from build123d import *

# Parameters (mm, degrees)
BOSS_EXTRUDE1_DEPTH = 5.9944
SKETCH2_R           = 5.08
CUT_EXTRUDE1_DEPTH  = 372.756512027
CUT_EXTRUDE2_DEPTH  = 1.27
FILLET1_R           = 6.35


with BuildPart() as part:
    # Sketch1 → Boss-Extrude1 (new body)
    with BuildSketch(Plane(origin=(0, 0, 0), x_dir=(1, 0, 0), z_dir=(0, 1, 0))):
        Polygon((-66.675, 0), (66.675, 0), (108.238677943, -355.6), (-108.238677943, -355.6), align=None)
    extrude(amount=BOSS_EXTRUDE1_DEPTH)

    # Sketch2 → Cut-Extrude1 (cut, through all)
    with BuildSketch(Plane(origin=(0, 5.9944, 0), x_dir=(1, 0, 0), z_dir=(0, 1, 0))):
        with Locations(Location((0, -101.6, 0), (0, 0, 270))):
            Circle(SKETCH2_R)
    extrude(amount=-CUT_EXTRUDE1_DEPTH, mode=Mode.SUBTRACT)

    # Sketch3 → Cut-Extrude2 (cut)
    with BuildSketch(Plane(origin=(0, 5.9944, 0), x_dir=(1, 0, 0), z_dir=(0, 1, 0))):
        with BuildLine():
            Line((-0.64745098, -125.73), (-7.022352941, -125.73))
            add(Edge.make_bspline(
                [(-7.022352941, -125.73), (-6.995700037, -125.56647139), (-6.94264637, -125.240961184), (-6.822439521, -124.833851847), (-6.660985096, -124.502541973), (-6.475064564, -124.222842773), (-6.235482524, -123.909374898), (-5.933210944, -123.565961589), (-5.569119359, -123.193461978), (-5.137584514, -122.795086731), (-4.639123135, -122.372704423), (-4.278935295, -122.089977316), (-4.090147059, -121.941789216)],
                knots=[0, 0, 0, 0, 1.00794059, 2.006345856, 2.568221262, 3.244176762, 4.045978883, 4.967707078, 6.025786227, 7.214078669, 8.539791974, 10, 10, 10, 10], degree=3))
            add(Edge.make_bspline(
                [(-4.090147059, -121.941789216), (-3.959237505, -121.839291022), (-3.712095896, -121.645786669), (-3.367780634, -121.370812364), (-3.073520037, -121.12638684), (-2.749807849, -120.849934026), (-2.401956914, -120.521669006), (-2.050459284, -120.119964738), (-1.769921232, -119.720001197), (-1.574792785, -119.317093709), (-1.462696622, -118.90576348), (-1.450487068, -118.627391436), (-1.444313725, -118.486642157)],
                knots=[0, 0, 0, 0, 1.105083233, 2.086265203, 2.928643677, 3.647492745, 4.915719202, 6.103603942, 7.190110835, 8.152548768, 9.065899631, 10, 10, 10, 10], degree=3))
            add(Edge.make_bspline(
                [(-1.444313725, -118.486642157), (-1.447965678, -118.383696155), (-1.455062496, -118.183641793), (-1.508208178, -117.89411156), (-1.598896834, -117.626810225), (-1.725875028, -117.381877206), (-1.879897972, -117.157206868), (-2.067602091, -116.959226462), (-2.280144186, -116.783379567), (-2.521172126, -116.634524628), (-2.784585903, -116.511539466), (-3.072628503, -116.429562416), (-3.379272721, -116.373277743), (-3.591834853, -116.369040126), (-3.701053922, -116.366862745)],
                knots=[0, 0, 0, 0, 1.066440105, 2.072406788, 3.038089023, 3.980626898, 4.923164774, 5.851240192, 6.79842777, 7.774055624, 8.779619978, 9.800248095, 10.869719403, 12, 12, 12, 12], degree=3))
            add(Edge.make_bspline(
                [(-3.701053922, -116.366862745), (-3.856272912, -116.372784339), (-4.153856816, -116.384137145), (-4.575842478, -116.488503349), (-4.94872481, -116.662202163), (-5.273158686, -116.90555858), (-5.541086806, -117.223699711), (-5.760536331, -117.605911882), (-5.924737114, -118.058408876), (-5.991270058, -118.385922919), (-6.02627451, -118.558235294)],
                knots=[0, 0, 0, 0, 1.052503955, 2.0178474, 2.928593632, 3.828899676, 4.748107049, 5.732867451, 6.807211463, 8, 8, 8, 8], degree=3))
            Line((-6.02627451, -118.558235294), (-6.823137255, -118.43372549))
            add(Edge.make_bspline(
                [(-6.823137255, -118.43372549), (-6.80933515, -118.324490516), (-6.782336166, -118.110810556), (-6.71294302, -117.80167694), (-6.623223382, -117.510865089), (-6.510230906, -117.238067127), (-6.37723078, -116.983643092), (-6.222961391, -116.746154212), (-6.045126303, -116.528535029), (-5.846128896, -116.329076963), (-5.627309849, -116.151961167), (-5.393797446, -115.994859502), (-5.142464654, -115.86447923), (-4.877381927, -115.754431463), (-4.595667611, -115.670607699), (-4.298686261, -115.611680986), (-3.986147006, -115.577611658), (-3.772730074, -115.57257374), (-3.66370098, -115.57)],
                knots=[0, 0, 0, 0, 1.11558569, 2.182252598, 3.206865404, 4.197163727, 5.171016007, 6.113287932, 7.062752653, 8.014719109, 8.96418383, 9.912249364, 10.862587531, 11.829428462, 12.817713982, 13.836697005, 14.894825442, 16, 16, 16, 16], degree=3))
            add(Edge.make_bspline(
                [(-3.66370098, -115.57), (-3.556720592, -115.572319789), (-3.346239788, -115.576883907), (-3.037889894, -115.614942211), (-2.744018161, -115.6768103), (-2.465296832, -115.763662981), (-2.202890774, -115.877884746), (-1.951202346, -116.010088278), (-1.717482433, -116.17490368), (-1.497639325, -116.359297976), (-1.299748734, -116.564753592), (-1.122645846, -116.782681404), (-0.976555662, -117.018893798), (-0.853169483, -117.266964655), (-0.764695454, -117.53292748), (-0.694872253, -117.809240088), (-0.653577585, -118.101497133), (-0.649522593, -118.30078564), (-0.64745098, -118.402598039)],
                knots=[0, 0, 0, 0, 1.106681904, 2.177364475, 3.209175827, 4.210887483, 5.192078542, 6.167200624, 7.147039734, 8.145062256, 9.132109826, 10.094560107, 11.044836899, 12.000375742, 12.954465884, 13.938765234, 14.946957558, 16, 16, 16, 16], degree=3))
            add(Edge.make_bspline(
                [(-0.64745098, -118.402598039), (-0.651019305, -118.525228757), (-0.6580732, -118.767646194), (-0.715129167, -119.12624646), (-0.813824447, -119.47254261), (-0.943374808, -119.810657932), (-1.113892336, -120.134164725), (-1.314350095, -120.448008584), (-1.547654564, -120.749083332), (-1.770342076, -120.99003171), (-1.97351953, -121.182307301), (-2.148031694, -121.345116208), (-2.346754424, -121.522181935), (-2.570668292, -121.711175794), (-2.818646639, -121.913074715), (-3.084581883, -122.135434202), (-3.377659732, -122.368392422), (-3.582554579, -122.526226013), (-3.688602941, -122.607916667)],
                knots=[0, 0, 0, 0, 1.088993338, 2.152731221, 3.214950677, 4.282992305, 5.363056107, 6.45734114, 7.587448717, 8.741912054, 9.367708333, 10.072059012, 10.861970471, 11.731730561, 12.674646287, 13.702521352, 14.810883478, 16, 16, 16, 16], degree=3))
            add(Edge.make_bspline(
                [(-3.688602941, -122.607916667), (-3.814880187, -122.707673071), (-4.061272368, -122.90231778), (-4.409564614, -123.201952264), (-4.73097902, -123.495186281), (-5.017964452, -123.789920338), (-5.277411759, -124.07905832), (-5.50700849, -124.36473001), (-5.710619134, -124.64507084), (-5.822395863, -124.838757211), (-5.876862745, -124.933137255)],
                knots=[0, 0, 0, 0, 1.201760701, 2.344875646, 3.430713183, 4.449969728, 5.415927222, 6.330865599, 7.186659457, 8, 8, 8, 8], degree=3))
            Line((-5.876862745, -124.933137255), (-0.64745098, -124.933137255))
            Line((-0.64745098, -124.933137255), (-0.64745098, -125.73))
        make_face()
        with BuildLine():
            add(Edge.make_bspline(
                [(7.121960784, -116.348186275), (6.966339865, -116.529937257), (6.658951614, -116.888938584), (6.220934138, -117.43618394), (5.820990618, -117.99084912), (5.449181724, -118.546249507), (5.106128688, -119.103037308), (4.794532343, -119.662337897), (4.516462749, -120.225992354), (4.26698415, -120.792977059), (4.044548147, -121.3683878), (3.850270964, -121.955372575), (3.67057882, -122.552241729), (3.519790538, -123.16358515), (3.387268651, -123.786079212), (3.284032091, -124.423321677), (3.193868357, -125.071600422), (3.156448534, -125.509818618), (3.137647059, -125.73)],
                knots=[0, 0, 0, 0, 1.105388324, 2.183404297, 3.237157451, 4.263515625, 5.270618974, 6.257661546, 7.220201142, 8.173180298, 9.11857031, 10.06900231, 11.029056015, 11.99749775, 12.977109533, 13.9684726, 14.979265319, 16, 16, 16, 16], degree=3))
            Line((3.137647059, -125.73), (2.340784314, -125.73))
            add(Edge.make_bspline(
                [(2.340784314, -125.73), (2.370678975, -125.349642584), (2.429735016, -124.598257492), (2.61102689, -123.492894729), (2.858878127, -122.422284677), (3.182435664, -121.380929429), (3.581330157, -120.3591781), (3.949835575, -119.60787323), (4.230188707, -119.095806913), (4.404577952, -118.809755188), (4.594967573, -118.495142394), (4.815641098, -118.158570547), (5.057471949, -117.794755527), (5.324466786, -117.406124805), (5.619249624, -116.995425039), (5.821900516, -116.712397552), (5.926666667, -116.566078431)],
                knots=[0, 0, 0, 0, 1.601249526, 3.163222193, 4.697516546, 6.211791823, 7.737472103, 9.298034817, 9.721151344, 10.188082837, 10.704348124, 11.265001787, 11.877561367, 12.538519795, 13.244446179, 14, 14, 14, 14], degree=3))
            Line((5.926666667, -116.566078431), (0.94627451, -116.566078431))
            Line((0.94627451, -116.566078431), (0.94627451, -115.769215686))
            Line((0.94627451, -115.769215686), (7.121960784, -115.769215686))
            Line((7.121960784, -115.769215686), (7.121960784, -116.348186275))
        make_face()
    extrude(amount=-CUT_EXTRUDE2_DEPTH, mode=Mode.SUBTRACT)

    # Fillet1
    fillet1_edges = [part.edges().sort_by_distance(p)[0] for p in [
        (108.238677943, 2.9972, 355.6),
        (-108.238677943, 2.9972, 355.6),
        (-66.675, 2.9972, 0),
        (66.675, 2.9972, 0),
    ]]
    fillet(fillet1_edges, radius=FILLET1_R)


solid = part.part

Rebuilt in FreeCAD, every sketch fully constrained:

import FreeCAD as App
import Part
import Sketcher

V = App.Vector
Q = App.Units.Quantity


def edges_at(feature, points):
    """Names of the edges that pass closest to the given points."""
    edges = feature.Shape.Edges
    near = lambda p: min(range(len(edges)), key=lambda i: edges[i].distToShape(Part.Vertex(*p))[0])
    return sorted({f"Edge{near(p) + 1}" for p in points})


def add_polygon(sketch, points):
    """Adds a closed chain of lines whose ends are joined by coincident constraints."""
    first, n = sketch.GeometryCount, len(points)
    for a, b in zip(points, points[1:] + points[:1]):
        sketch.addGeometry(Part.LineSegment(App.Vector(*a, 0), App.Vector(*b, 0)), False)
    for i in range(n):
        sketch.addConstraint(Sketcher.Constraint("Coincident", first + i, 2, first + (i + 1) % n, 1))

doc = App.newDocument("Part")
body = doc.addObject("PartDesign::Body", "Body")

# Sketch on XZ plane
sketch1 = doc.addObject("Sketcher::SketchObject", "Sketch")
body.addObject(sketch1)
sketch1.AttachmentSupport = (doc.XZ_Plane, [""])
sketch1.MapMode = "FlatFace"
add_polygon(sketch1, [(67, 0), (-67, 0), (-108, 356), (108, 356)])  # lines 0-3
sketch1.addConstraint(Sketcher.Constraint("Horizontal", 0))
sketch1.addConstraint(Sketcher.Constraint("Horizontal", 2))
sketch1.addConstraint(Sketcher.Constraint("Symmetric", 0, 2, 3, 2, -1, 1))
sketch1.addConstraint(Sketcher.Constraint("Equal", 1, 3))
sketch1.addConstraint(Sketcher.Constraint("DistanceY", -1, 1, 1, 2, Q("14 in")))
sketch1.addConstraint(Sketcher.Constraint("DistanceX", 0, 2, 0, 1, Q("5.25 in")))
sketch1.addConstraint(Sketcher.Constraint("Distance", 1, 358.020809))
pad1 = doc.addObject("PartDesign::Pad", "Pad")
body.addObject(pad1)
pad1.Profile = sketch1
pad1.Length = Q("0.236 in")
pad1.Reversed = True

# Sketch on XZ plane
sketch2 = doc.addObject("Sketcher::SketchObject", "Sketch001")
body.addObject(sketch2)
sketch2.AttachmentSupport = (doc.XZ_Plane, [""])
sketch2.MapMode = "FlatFace"
sketch2.AttachmentOffset = App.Placement(V(0, 0, -0.236 * 25.4), App.Rotation())
sketch2.addGeometry(Part.Circle(V(0, 102, 0), V(0, 0, 1), 5), False)
sketch2.addConstraint(Sketcher.Constraint("PointOnObject", 0, 3, -2))
sketch2.addConstraint(Sketcher.Constraint("Diameter", 0, Q("0.4 in")))
sketch2.addConstraint(Sketcher.Constraint("DistanceY", -1, 1, 0, 3, Q("4 in")))
pocket1 = doc.addObject("PartDesign::Pocket", "Pocket")
body.addObject(pocket1)
pocket1.Profile = sketch2
pocket1.Type = "ThroughAll"
pocket1.Reversed = True

# Sketch on XZ plane
sketch3 = doc.addObject("Sketcher::SketchObject", "Sketch002")
body.addObject(sketch3)
sketch3.AttachmentSupport = (doc.XZ_Plane, [""])
sketch3.MapMode = "FlatFace"
sketch3.AttachmentOffset = App.Placement(V(0, 0, -0.236 * 25.4), App.Rotation())
sketch3.addGeometry(Part.LineSegment(V(-7.022353, 125.73, 0), V(-0.647451, 125.73, 0)), False)
sketch3.addGeometry(Part.LineSegment(V(-0.647451, 125.73, 0), V(-0.647451, 124.933137, 0)), False)
sketch3.addGeometry(Part.LineSegment(V(-0.647451, 124.933137, 0), V(-5.876863, 124.933137, 0)), False)
sketch3.addGeometry(Part.BSplineCurve([V(-3.688603, 122.607917, 0), V(-3.81488, 122.707673, 0), V(-4.061272, 122.902318, 0), V(-4.409565, 123.201952, 0), V(-4.730979, 123.495186, 0), V(-5.017964, 123.78992, 0), V(-5.277412, 124.079058, 0), V(-5.507008, 124.36473, 0), V(-5.710619, 124.645071, 0), V(-5.822396, 124.838757, 0), V(-5.876863, 124.933137, 0)], [4, 1, 1, 1, 1, 1, 1, 1, 4], [0, 1.201760701, 2.344875646, 3.430713183, 4.449969728, 5.415927222, 6.330865599, 7.186659457, 8], False, 3, [1, 1, 1, 1, 1, 1, 1, 1, 1, 1, 1], False), False)
sketch3.addGeometry(Part.BSplineCurve([V(-0.647451, 118.402598, 0), V(-0.651019, 118.525229, 0), V(-0.658073, 118.767646, 0), V(-0.715129, 119.126246, 0), V(-0.813824, 119.472543, 0), V(-0.943375, 119.810658, 0), V(-1.113892, 120.134165, 0), V(-1.31435, 120.448009, 0), V(-1.547655, 120.749083, 0), V(-1.770342, 120.990032, 0), V(-1.97352, 121.182307, 0), V(-2.148032, 121.345116, 0), V(-2.346754, 121.522182, 0), V(-2.570668, 121.711176, 0), V(-2.818647, 121.913075, 0), V(-3.084582, 122.135434, 0), V(-3.37766, 122.368392, 0), V(-3.582555, 122.526226, 0), V(-3.688603, 122.607917, 0)], [4, 1, 1, 1, 1, 1, 1, 1, 1, 1, 1, 1, 1, 1, 1, 1, 4], [0, 1.088993338, 2.152731221, 3.214950677, 4.282992305, 5.363056107, 6.45734114, 7.587448717, 8.741912054, 9.367708333, 10.072059012, 10.861970471, 11.731730561, 12.674646287, 13.702521352, 14.810883478, 16], False, 3, [1, 1, 1, 1, 1, 1, 1, 1, 1, 1, 1, 1, 1, 1, 1, 1, 1, 1, 1], False), False)
sketch3.addGeometry(Part.BSplineCurve([V(-3.663701, 115.57, 0), V(-3.556721, 115.57232, 0), V(-3.34624, 115.576884, 0), V(-3.03789, 115.614942, 0), V(-2.744018, 115.67681, 0), V(-2.465297, 115.763663, 0), V(-2.202891, 115.877885, 0), V(-1.951202, 116.010088, 0), V(-1.717482, 116.174904, 0), V(-1.497639, 116.359298, 0), V(-1.299749, 116.564754, 0), V(-1.122646, 116.782681, 0), V(-0.976556, 117.018894, 0), V(-0.853169, 117.266965, 0), V(-0.764695, 117.532927, 0), V(-0.694872, 117.80924, 0), V(-0.653578, 118.101497, 0), V(-0.649523, 118.300786, 0), V(-0.647451, 118.402598, 0)], [4, 1, 1, 1, 1, 1, 1, 1, 1, 1, 1, 1, 1, 1, 1, 1, 4], [0, 1.106681904, 2.177364475, 3.209175827, 4.210887483, 5.192078542, 6.167200624, 7.147039734, 8.145062256, 9.132109826, 10.094560107, 11.044836899, 12.000375742, 12.954465884, 13.938765234, 14.946957558, 16], False, 3, [1, 1, 1, 1, 1, 1, 1, 1, 1, 1, 1, 1, 1, 1, 1, 1, 1, 1, 1], False), False)
sketch3.addGeometry(Part.BSplineCurve([V(-6.823137, 118.433725, 0), V(-6.809335, 118.324491, 0), V(-6.782336, 118.110811, 0), V(-6.712943, 117.801677, 0), V(-6.623223, 117.510865, 0), V(-6.510231, 117.238067, 0), V(-6.377231, 116.983643, 0), V(-6.222961, 116.746154, 0), V(-6.045126, 116.528535, 0), V(-5.846129, 116.329077, 0), V(-5.62731, 116.151961, 0), V(-5.393797, 115.99486, 0), V(-5.142465, 115.864479, 0), V(-4.877382, 115.754431, 0), V(-4.595668, 115.670608, 0), V(-4.298686, 115.611681, 0), V(-3.986147, 115.577612, 0), V(-3.77273, 115.572574, 0), V(-3.663701, 115.57, 0)], [4, 1, 1, 1, 1, 1, 1, 1, 1, 1, 1, 1, 1, 1, 1, 1, 4], [0, 1.11558569, 2.182252598, 3.206865404, 4.197163727, 5.171016007, 6.113287932, 7.062752653, 8.014719109, 8.96418383, 9.912249364, 10.862587531, 11.829428462, 12.817713982, 13.836697005, 14.894825442, 16], False, 3, [1, 1, 1, 1, 1, 1, 1, 1, 1, 1, 1, 1, 1, 1, 1, 1, 1, 1, 1], False), False)
sketch3.addGeometry(Part.LineSegment(V(-6.823137, 118.433725, 0), V(-6.026275, 118.558235, 0)), False)
sketch3.addGeometry(Part.BSplineCurve([V(-3.701054, 116.366863, 0), V(-3.856273, 116.372784, 0), V(-4.153857, 116.384137, 0), V(-4.575842, 116.488503, 0), V(-4.948725, 116.662202, 0), V(-5.273159, 116.905559, 0), V(-5.541087, 117.2237, 0), V(-5.760536, 117.605912, 0), V(-5.924737, 118.058409, 0), V(-5.99127, 118.385923, 0), V(-6.026275, 118.558235, 0)], [4, 1, 1, 1, 1, 1, 1, 1, 4], [0, 1.052503955, 2.0178474, 2.928593632, 3.828899676, 4.748107049, 5.732867451, 6.807211463, 8], False, 3, [1, 1, 1, 1, 1, 1, 1, 1, 1, 1, 1], False), False)
sketch3.addGeometry(Part.BSplineCurve([V(-1.444314, 118.486642, 0), V(-1.447966, 118.383696, 0), V(-1.455062, 118.183642, 0), V(-1.508208, 117.894112, 0), V(-1.598897, 117.62681, 0), V(-1.725875, 117.381877, 0), V(-1.879898, 117.157207, 0), V(-2.067602, 116.959226, 0), V(-2.280144, 116.78338, 0), V(-2.521172, 116.634525, 0), V(-2.784586, 116.511539, 0), V(-3.072629, 116.429562, 0), V(-3.379273, 116.373278, 0), V(-3.591835, 116.36904, 0), V(-3.701054, 116.366863, 0)], [4, 1, 1, 1, 1, 1, 1, 1, 1, 1, 1, 1, 4], [0, 1.066440105, 2.072406788, 3.038089023, 3.980626898, 4.923164774, 5.851240192, 6.79842777, 7.774055624, 8.779619978, 9.800248095, 10.869719403, 12], False, 3, [1, 1, 1, 1, 1, 1, 1, 1, 1, 1, 1, 1, 1, 1, 1], False), False)
sketch3.addGeometry(Part.BSplineCurve([V(-4.090147, 121.941789, 0), V(-3.959238, 121.839291, 0), V(-3.712096, 121.645787, 0), V(-3.367781, 121.370812, 0), V(-3.07352, 121.126387, 0), V(-2.749808, 120.849934, 0), V(-2.401957, 120.521669, 0), V(-2.050459, 120.119965, 0), V(-1.769921, 119.720001, 0), V(-1.574793, 119.317094, 0), V(-1.462697, 118.905763, 0), V(-1.450487, 118.627391, 0), V(-1.444314, 118.486642, 0)], [4, 1, 1, 1, 1, 1, 1, 1, 1, 1, 4], [0, 1.105083233, 2.086265203, 2.928643677, 3.647492745, 4.915719202, 6.103603942, 7.190110835, 8.152548768, 9.065899631, 10], False, 3, [1, 1, 1, 1, 1, 1, 1, 1, 1, 1, 1, 1, 1], False), False)
sketch3.addGeometry(Part.BSplineCurve([V(-7.022353, 125.73, 0), V(-6.9957, 125.566471, 0), V(-6.942646, 125.240961, 0), V(-6.82244, 124.833852, 0), V(-6.660985, 124.502542, 0), V(-6.475065, 124.222843, 0), V(-6.235483, 123.909375, 0), V(-5.933211, 123.565962, 0), V(-5.569119, 123.193462, 0), V(-5.137585, 122.795087, 0), V(-4.639123, 122.372704, 0), V(-4.278935, 122.089977, 0), V(-4.090147, 121.941789, 0)], [4, 1, 1, 1, 1, 1, 1, 1, 1, 1, 4], [0, 1.00794059, 2.006345856, 2.568221262, 3.244176762, 4.045978883, 4.967707078, 6.025786227, 7.214078669, 8.539791974, 10], False, 3, [1, 1, 1, 1, 1, 1, 1, 1, 1, 1, 1, 1, 1], False), False)
sketch3.addGeometry(Part.BSplineCurve([V(7.121961, 116.348186, 0), V(6.96634, 116.529937, 0), V(6.658952, 116.888939, 0), V(6.220934, 117.436184, 0), V(5.820991, 117.990849, 0), V(5.449182, 118.54625, 0), V(5.106129, 119.103037, 0), V(4.794532, 119.662338, 0), V(4.516463, 120.225992, 0), V(4.266984, 120.792977, 0), V(4.044548, 121.368388, 0), V(3.850271, 121.955373, 0), V(3.670579, 122.552242, 0), V(3.519791, 123.163585, 0), V(3.387269, 123.786079, 0), V(3.284032, 124.423322, 0), V(3.193868, 125.0716, 0), V(3.156449, 125.509819, 0), V(3.137647, 125.73, 0)], [4, 1, 1, 1, 1, 1, 1, 1, 1, 1, 1, 1, 1, 1, 1, 1, 4], [0, 1.105388324, 2.183404297, 3.237157451, 4.263515625, 5.270618974, 6.257661546, 7.220201142, 8.173180298, 9.11857031, 10.06900231, 11.029056015, 11.99749775, 12.977109533, 13.9684726, 14.979265319, 16], False, 3, [1, 1, 1, 1, 1, 1, 1, 1, 1, 1, 1, 1, 1, 1, 1, 1, 1, 1, 1], False), False)
sketch3.addGeometry(Part.LineSegment(V(7.121961, 116.348186, 0), V(7.121961, 115.769216, 0)), False)
sketch3.addGeometry(Part.LineSegment(V(7.121961, 115.769216, 0), V(0.946275, 115.769216, 0)), False)
sketch3.addGeometry(Part.LineSegment(V(0.946275, 115.769216, 0), V(0.946275, 116.566078, 0)), False)
sketch3.addGeometry(Part.LineSegment(V(0.946275, 116.566078, 0), V(5.926667, 116.566078, 0)), False)
sketch3.addGeometry(Part.BSplineCurve([V(2.340784, 125.73, 0), V(2.370679, 125.349643, 0), V(2.429735, 124.598257, 0), V(2.611027, 123.492895, 0), V(2.858878, 122.422285, 0), V(3.182436, 121.380929, 0), V(3.58133, 120.359178, 0), V(3.949836, 119.607873, 0), V(4.230189, 119.095807, 0), V(4.404578, 118.809755, 0), V(4.594968, 118.495142, 0), V(4.815641, 118.158571, 0), V(5.057472, 117.794756, 0), V(5.324467, 117.406125, 0), V(5.61925, 116.995425, 0), V(5.821901, 116.712398, 0), V(5.926667, 116.566078, 0)], [4, 1, 1, 1, 1, 1, 1, 1, 1, 1, 1, 1, 1, 1, 4], [0, 1.601249526, 3.163222193, 4.697516546, 6.211791823, 7.737472103, 9.298034817, 9.721151344, 10.188082837, 10.704348124, 11.265001787, 11.877561367, 12.538519795, 13.244446179, 14], False, 3, [1, 1, 1, 1, 1, 1, 1, 1, 1, 1, 1, 1, 1, 1, 1, 1, 1], False), False)
sketch3.addGeometry(Part.LineSegment(V(2.340784, 125.73, 0), V(3.137647, 125.73, 0)), False)
sketch3.addConstraint(Sketcher.Constraint("Block", 3))
sketch3.addConstraint(Sketcher.Constraint("Block", 4))
sketch3.addConstraint(Sketcher.Constraint("Block", 5))
sketch3.addConstraint(Sketcher.Constraint("Block", 6))
sketch3.addConstraint(Sketcher.Constraint("Block", 8))
sketch3.addConstraint(Sketcher.Constraint("Block", 9))
sketch3.addConstraint(Sketcher.Constraint("Block", 10))
sketch3.addConstraint(Sketcher.Constraint("Block", 11))
sketch3.addConstraint(Sketcher.Constraint("Block", 12))
sketch3.addConstraint(Sketcher.Constraint("Block", 17))
sketch3.addConstraint(Sketcher.Constraint("Coincident", 0, 2, 1, 1))
sketch3.addConstraint(Sketcher.Constraint("Coincident", 1, 2, 2, 1))
sketch3.addConstraint(Sketcher.Constraint("Coincident", 2, 2, 3, 2))
sketch3.addConstraint(Sketcher.Constraint("Coincident", 6, 1, 7, 1))
sketch3.addConstraint(Sketcher.Constraint("Coincident", 7, 2, 8, 2))
sketch3.addConstraint(Sketcher.Constraint("Coincident", 11, 1, 0, 1))
sketch3.addConstraint(Sketcher.Constraint("Coincident", 12, 1, 13, 1))
sketch3.addConstraint(Sketcher.Constraint("Coincident", 13, 2, 14, 1))
sketch3.addConstraint(Sketcher.Constraint("Coincident", 14, 2, 15, 1))
sketch3.addConstraint(Sketcher.Constraint("Coincident", 15, 2, 16, 1))
sketch3.addConstraint(Sketcher.Constraint("Coincident", 16, 2, 17, 2))
sketch3.addConstraint(Sketcher.Constraint("Coincident", 17, 1, 18, 1))
sketch3.addConstraint(Sketcher.Constraint("Coincident", 18, 2, 12, 2))
sketch3.addConstraint(Sketcher.Constraint("Horizontal", 0))
sketch3.addConstraint(Sketcher.Constraint("Vertical", 1))
sketch3.addConstraint(Sketcher.Constraint("Horizontal", 2))
sketch3.addConstraint(Sketcher.Constraint("Vertical", 13))
sketch3.addConstraint(Sketcher.Constraint("Horizontal", 14))
sketch3.addConstraint(Sketcher.Constraint("Vertical", 15))
sketch3.addConstraint(Sketcher.Constraint("Horizontal", 16))
sketch3.addConstraint(Sketcher.Constraint("DistanceX", 0, 1, 0, 2, 6.374902))
sketch3.addConstraint(Sketcher.Constraint("DistanceY", 13, 2, 13, 1, 0.578971))
sketch3.addConstraint(Sketcher.Constraint("DistanceX", 14, 2, 14, 1, 6.175686))
pocket2 = doc.addObject("PartDesign::Pocket", "Pocket001")
body.addObject(pocket2)
pocket2.Profile = sketch3
pocket2.Length = Q("0.05 in")
pocket2.Reversed = True
doc.recompute()

fillet = doc.addObject("PartDesign::Fillet", "Fillet")
body.addObject(fillet)
fillet.Base = (pocket2, edges_at(pocket2, [
    (108.239, 2.997, 355.6),
    (-108.239, 2.997, 355.6),
    (-66.675, 2.997, 0),
    (66.675, 2.997, 0),
]))
fillet.Radius = Q("0.25 in")

doc.recompute()
